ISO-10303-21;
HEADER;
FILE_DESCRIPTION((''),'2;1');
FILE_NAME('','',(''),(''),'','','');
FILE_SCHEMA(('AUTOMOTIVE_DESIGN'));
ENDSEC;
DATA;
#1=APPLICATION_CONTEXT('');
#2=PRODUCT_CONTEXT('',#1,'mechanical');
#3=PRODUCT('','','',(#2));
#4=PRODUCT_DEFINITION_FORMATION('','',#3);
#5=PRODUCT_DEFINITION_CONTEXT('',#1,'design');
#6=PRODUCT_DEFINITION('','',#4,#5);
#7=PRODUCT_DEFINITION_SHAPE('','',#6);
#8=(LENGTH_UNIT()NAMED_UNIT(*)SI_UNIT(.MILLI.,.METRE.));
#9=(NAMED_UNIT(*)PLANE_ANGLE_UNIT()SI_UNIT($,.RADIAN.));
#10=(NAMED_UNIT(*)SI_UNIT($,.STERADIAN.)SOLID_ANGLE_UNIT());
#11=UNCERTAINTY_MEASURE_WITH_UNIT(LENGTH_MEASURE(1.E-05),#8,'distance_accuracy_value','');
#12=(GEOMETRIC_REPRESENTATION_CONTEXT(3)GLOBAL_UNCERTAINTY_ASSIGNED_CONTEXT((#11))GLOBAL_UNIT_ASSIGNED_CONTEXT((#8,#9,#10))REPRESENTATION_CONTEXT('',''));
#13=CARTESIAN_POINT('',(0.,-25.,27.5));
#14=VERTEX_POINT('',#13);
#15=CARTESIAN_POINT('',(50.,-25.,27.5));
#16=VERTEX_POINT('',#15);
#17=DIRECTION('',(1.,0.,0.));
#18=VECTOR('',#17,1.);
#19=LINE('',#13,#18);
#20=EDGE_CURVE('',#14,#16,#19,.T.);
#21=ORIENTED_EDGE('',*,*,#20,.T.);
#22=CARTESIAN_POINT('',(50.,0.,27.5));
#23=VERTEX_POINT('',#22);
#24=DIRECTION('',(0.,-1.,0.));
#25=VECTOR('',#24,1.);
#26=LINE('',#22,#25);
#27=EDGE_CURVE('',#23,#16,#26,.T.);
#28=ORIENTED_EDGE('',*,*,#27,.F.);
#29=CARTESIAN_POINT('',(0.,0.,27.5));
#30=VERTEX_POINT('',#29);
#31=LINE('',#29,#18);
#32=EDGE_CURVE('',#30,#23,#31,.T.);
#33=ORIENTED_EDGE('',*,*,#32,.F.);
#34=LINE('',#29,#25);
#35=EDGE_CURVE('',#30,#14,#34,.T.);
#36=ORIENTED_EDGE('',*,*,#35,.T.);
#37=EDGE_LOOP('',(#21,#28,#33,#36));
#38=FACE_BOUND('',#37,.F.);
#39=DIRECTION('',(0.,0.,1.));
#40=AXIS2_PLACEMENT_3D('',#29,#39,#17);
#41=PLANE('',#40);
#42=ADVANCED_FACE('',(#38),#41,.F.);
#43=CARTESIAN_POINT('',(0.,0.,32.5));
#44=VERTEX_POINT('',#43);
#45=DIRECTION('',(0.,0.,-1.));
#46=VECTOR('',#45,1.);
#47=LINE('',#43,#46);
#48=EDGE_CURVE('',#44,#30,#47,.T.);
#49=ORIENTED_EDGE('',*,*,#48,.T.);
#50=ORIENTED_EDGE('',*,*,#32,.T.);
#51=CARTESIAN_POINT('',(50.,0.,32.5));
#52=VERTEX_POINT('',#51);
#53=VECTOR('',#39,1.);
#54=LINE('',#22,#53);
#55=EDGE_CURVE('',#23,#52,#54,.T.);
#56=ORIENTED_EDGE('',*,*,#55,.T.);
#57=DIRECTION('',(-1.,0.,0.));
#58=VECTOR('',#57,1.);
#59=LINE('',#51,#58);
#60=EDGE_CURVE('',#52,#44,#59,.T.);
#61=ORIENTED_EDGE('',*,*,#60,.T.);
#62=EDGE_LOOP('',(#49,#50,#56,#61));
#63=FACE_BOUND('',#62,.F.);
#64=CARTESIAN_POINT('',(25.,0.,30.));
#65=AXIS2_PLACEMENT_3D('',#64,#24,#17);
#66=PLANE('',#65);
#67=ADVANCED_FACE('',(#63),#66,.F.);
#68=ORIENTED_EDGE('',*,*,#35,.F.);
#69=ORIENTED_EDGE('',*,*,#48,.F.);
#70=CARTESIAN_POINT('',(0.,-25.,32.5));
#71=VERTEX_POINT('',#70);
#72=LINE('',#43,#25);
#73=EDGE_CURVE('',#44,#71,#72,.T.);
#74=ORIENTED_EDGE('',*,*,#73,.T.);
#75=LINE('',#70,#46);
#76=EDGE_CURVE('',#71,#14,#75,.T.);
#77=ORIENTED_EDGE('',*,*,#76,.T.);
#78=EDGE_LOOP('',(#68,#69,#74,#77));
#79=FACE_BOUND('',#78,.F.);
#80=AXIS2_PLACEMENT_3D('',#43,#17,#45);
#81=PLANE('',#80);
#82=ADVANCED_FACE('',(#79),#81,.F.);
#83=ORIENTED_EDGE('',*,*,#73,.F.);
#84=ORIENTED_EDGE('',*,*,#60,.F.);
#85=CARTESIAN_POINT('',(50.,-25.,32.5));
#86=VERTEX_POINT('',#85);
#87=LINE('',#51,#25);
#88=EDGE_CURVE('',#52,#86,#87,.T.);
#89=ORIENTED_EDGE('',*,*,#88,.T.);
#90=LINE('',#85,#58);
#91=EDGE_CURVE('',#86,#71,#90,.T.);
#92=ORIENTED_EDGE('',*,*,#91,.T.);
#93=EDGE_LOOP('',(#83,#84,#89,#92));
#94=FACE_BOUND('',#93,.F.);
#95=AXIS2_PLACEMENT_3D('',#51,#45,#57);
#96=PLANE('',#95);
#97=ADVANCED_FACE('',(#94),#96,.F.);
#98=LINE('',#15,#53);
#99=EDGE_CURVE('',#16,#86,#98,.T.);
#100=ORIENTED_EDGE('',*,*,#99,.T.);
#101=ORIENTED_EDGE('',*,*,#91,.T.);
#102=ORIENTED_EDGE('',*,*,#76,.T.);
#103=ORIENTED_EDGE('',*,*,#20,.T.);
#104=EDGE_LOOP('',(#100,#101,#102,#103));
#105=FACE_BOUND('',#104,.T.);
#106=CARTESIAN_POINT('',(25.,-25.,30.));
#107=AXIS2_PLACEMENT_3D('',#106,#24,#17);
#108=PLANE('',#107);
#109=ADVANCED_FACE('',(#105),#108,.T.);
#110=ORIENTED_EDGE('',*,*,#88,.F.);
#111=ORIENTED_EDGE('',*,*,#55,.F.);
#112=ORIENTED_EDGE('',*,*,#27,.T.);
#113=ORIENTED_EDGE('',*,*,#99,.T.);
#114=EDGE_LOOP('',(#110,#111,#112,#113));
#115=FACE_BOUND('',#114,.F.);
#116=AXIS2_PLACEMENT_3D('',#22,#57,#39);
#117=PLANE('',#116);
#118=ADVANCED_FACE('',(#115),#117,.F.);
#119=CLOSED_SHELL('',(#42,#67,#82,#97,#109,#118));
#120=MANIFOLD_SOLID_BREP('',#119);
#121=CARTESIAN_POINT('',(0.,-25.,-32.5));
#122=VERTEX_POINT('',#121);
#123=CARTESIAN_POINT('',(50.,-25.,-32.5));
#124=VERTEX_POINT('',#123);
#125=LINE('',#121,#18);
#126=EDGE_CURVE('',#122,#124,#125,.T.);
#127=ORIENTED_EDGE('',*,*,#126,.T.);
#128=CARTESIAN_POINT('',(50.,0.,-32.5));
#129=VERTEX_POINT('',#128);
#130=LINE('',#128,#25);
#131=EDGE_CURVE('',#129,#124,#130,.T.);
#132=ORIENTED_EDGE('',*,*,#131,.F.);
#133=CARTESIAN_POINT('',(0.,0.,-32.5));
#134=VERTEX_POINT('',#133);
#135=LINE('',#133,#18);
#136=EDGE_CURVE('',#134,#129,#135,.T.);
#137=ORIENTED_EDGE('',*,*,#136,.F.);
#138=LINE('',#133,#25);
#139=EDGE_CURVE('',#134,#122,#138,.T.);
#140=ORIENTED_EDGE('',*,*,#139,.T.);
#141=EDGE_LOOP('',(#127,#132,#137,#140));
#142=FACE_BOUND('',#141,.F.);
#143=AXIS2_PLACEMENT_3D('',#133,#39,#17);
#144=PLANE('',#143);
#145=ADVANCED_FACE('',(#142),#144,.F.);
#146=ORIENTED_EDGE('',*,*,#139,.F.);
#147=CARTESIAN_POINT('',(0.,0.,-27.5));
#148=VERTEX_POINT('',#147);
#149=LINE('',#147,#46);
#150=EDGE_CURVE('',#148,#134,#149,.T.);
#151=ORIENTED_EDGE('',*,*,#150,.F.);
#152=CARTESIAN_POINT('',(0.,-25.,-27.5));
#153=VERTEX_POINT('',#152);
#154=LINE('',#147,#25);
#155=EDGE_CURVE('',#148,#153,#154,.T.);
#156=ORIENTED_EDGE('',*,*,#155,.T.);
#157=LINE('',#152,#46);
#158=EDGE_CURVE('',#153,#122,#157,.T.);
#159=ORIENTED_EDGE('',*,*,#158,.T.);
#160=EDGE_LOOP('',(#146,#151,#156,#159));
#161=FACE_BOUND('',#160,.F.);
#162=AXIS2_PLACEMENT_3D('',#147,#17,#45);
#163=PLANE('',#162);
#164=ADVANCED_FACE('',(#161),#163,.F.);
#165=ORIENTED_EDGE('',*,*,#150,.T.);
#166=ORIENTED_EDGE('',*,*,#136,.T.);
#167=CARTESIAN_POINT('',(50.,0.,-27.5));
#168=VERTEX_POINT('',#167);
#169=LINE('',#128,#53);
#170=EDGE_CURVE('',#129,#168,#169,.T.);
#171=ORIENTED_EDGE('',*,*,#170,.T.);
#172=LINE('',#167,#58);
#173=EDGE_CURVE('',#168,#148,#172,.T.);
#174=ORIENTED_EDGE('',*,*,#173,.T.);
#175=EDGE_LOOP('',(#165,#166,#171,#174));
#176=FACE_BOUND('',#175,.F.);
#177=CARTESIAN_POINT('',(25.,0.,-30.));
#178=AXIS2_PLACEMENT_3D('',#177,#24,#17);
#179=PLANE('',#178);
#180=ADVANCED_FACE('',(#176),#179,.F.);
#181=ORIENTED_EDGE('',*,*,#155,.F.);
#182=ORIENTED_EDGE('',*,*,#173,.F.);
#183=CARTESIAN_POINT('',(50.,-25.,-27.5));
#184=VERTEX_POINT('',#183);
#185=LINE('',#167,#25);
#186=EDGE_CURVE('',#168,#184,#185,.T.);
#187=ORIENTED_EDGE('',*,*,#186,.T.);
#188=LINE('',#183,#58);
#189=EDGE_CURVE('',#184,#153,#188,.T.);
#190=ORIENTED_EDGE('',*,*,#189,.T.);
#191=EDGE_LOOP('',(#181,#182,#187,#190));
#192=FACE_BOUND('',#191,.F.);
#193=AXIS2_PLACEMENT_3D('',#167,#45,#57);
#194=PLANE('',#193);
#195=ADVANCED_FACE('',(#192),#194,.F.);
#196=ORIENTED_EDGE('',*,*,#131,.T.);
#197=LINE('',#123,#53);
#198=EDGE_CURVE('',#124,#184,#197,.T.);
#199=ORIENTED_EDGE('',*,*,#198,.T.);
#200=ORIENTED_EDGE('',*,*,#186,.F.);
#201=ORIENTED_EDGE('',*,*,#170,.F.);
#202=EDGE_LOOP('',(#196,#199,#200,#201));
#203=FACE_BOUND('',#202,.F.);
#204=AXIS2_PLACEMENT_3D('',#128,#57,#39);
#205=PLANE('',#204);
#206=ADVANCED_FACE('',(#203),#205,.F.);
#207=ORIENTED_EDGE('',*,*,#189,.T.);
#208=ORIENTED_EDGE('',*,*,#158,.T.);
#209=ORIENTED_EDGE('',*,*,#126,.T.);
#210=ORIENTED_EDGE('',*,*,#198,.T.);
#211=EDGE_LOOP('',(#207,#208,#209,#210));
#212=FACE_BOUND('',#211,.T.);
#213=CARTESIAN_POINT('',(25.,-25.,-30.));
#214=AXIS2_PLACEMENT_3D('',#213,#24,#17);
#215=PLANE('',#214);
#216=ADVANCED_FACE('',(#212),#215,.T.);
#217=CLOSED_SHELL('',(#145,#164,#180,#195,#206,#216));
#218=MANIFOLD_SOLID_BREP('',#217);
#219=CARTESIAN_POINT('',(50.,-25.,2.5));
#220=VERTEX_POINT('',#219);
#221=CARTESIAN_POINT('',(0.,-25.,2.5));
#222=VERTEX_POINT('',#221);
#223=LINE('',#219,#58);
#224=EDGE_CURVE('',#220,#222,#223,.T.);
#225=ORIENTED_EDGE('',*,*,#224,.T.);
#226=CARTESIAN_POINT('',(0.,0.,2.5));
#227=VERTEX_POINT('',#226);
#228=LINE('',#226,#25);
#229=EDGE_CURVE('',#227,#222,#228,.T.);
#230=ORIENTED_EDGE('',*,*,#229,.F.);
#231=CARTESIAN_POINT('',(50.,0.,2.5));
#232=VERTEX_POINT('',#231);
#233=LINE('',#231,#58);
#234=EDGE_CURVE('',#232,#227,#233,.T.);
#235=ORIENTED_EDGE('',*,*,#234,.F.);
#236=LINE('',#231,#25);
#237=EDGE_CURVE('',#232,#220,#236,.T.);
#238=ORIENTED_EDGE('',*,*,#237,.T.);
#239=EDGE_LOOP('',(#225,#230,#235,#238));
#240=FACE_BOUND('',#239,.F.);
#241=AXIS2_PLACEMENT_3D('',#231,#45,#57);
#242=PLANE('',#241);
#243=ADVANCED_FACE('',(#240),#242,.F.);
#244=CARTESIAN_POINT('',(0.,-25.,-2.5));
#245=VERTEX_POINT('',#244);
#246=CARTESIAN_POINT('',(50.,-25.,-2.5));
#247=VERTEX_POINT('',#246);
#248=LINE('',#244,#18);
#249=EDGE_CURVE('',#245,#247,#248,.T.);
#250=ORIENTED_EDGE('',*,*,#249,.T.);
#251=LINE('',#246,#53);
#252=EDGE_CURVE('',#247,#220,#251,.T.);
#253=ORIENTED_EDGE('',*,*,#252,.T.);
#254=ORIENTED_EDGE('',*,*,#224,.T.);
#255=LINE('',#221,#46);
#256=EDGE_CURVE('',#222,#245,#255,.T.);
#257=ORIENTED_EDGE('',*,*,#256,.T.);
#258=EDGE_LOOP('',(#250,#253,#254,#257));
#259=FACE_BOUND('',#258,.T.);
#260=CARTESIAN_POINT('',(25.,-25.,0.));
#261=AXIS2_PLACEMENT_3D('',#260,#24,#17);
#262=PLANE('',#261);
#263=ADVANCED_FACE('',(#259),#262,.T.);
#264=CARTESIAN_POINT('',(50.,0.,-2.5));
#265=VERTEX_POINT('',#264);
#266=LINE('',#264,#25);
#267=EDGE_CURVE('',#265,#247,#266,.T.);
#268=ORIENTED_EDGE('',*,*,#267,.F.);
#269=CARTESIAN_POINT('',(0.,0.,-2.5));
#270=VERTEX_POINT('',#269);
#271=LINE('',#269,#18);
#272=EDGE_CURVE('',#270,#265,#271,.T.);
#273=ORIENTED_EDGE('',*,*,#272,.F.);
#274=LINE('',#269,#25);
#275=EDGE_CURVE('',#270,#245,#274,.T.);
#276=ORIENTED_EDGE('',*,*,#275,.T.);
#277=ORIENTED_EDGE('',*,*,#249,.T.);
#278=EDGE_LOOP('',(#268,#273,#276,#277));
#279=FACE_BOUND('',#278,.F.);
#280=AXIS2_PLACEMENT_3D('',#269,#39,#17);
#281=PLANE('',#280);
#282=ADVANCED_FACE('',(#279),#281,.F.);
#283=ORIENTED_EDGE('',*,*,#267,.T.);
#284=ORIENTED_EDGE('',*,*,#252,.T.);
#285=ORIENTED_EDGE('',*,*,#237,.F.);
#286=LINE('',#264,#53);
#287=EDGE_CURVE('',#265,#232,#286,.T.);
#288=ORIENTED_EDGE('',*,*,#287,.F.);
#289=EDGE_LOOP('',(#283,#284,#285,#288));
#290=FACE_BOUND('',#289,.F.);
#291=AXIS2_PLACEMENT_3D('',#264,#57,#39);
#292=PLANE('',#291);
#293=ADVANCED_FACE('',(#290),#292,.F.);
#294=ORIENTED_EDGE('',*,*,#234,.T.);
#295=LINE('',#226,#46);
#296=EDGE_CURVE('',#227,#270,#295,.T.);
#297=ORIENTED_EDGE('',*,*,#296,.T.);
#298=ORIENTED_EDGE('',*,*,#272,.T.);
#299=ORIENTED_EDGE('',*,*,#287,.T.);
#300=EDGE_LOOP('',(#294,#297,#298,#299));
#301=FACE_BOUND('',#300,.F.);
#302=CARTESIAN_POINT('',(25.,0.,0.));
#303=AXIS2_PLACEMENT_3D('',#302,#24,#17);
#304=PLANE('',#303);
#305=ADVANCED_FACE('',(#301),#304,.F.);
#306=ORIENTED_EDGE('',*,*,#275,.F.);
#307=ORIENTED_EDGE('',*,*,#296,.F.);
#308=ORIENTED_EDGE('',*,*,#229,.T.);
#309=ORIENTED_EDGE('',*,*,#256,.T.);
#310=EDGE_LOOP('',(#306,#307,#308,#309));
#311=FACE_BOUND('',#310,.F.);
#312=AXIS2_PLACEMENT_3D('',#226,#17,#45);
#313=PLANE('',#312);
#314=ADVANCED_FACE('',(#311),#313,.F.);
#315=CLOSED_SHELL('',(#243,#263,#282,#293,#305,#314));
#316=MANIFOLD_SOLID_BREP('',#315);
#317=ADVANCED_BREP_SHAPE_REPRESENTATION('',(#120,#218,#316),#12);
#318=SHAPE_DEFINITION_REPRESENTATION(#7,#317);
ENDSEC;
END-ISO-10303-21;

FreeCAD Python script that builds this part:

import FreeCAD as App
import Part
import Sketcher
from FreeCAD import Vector

doc = App.newDocument("Part")
body = doc.addObject("PartDesign::Body", "Body")

sketch1 = body.newObject("Sketcher::SketchObject", "Sketch")
sketch1.AttachmentSupport = (doc.getObject("XZ_Plane"), [""])
sketch1.MapMode = "FlatFace"
sketch1.addGeometry(Part.LineSegment(Vector(0, -28, 0), Vector(0, -32, 0)), False)
sketch1.addGeometry(Part.LineSegment(Vector(0, -32, 0), Vector(50, -32, 0)), False)
sketch1.addGeometry(Part.LineSegment(Vector(50, -32, 0), Vector(50, -28, 0)), False)
sketch1.addGeometry(Part.LineSegment(Vector(50, -28, 0), Vector(0, -28, 0)), False)
sketch1.addConstraint(Sketcher.Constraint("Coincident", 0, 2, 1, 1))
sketch1.addConstraint(Sketcher.Constraint("Coincident", 1, 2, 2, 1))
sketch1.addConstraint(Sketcher.Constraint("Coincident", 2, 2, 3, 1))
sketch1.addConstraint(Sketcher.Constraint("Coincident", 3, 2, 0, 1))
sketch1.addConstraint(Sketcher.Constraint("Vertical", 0))
sketch1.addConstraint(Sketcher.Constraint("Horizontal", 1))
sketch1.addConstraint(Sketcher.Constraint("Vertical", 2))
sketch1.addConstraint(Sketcher.Constraint("Horizontal", 3))
sketch1.addConstraint(Sketcher.Constraint("PointOnObject", 0, 2, -2))
sketch1.addConstraint(Sketcher.Constraint("DistanceX", 1, 1, 1, 2, 50.0))
sketch1.addConstraint(Sketcher.Constraint("DistanceY", 0, 2, 0, 1, 5.0))
sketch1.addConstraint(Sketcher.Constraint("DistanceY", 0, 2, -1, 1, 32.5))
pad1 = body.newObject("PartDesign::Pad", "Pad")
pad1.Profile = sketch1
pad1.Length = 25
body2 = doc.addObject("PartDesign::Body", "Body001")

sketch2 = body2.newObject("Sketcher::SketchObject", "Sketch001")
sketch2.AttachmentSupport = (doc.getObject("XZ_Plane001"), [""])
sketch2.MapMode = "FlatFace"
sketch2.addGeometry(Part.LineSegment(Vector(0, 2, 0), Vector(0, -2, 0)), False)
sketch2.addGeometry(Part.LineSegment(Vector(0, -2, 0), Vector(50, -2, 0)), False)
sketch2.addGeometry(Part.LineSegment(Vector(50, -2, 0), Vector(50, 2, 0)), False)
sketch2.addGeometry(Part.LineSegment(Vector(50, 2, 0), Vector(0, 2, 0)), False)
sketch2.addConstraint(Sketcher.Constraint("Coincident", 0, 2, 1, 1))
sketch2.addConstraint(Sketcher.Constraint("Coincident", 1, 2, 2, 1))
sketch2.addConstraint(Sketcher.Constraint("Coincident", 2, 2, 3, 1))
sketch2.addConstraint(Sketcher.Constraint("Coincident", 3, 2, 0, 1))
sketch2.addConstraint(Sketcher.Constraint("Vertical", 0))
sketch2.addConstraint(Sketcher.Constraint("Horizontal", 1))
sketch2.addConstraint(Sketcher.Constraint("Vertical", 2))
sketch2.addConstraint(Sketcher.Constraint("Horizontal", 3))
sketch2.addConstraint(Sketcher.Constraint("Symmetric", 0, 2, 3, 2, -1, 1))
sketch2.addConstraint(Sketcher.Constraint("DistanceX", 1, 1, 1, 2, 50.0))
sketch2.addConstraint(Sketcher.Constraint("DistanceY", 0, 2, 0, 1, 5.0))
pad2 = body2.newObject("PartDesign::Pad", "Pad001")
pad2.Profile = sketch2
pad2.Length = 25
body3 = doc.addObject("PartDesign::Body", "Body002")

sketch3 = body3.newObject("Sketcher::SketchObject", "Sketch002")
sketch3.AttachmentSupport = (doc.getObject("XZ_Plane002"), [""])
sketch3.MapMode = "FlatFace"
sketch3.addGeometry(Part.LineSegment(Vector(0, 32, 0), Vector(0, 28, 0)), False)
sketch3.addGeometry(Part.LineSegment(Vector(0, 28, 0), Vector(50, 28, 0)), False)
sketch3.addGeometry(Part.LineSegment(Vector(50, 28, 0), Vector(50, 32, 0)), False)
sketch3.addGeometry(Part.LineSegment(Vector(50, 32, 0), Vector(0, 32, 0)), False)
sketch3.addConstraint(Sketcher.Constraint("Coincident", 0, 2, 1, 1))
sketch3.addConstraint(Sketcher.Constraint("Coincident", 1, 2, 2, 1))
sketch3.addConstraint(Sketcher.Constraint("Coincident", 2, 2, 3, 1))
sketch3.addConstraint(Sketcher.Constraint("Coincident", 3, 2, 0, 1))
sketch3.addConstraint(Sketcher.Constraint("Vertical", 0))
sketch3.addConstraint(Sketcher.Constraint("Horizontal", 1))
sketch3.addConstraint(Sketcher.Constraint("Vertical", 2))
sketch3.addConstraint(Sketcher.Constraint("Horizontal", 3))
sketch3.addConstraint(Sketcher.Constraint("PointOnObject", 0, 2, -2))
sketch3.addConstraint(Sketcher.Constraint("DistanceX", 1, 1, 1, 2, 50.0))
sketch3.addConstraint(Sketcher.Constraint("DistanceY", 0, 2, 0, 1, 5.0))
sketch3.addConstraint(Sketcher.Constraint("DistanceY", -1, 1, 0, 2, 27.5))
pad3 = body3.newObject("PartDesign::Pad", "Pad002")
pad3.Profile = sketch3
pad3.Length = 25

doc.recompute()
